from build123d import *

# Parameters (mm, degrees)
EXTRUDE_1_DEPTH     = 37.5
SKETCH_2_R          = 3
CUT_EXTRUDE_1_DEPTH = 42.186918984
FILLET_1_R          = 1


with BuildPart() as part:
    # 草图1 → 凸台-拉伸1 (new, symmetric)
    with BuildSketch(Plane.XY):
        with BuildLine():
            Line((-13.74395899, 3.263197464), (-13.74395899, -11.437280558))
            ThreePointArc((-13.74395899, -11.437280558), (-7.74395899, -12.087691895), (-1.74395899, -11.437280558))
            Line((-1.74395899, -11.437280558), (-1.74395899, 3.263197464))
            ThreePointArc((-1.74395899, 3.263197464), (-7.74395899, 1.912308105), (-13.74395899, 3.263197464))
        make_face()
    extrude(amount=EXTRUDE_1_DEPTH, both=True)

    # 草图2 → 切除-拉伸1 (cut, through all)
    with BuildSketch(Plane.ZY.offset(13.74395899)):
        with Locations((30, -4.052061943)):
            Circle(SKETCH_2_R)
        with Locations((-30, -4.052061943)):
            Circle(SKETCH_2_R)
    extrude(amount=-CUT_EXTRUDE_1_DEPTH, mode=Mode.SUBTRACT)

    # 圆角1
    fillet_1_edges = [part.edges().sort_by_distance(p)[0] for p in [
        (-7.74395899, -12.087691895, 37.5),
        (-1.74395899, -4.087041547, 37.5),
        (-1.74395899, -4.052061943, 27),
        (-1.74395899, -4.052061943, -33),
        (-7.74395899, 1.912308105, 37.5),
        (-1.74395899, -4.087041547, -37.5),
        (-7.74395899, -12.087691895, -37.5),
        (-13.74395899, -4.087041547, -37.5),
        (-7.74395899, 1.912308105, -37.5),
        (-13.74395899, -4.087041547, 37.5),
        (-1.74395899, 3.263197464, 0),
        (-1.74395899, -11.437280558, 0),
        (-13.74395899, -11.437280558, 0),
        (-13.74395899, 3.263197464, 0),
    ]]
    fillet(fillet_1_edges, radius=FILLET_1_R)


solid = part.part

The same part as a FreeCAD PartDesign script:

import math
import FreeCAD as App
import Part
import Sketcher
Q = App.Units.Quantity


def edges_at(feature, points):
    """Names of the edges that pass closest to the given points."""
    edges = feature.Shape.Edges
    near = lambda p: min(range(len(edges)), key=lambda i: edges[i].distToShape(Part.Vertex(*p))[0])
    return sorted({f"Edge{near(p) + 1}" for p in points})

doc = App.newDocument("Part")
body = doc.addObject("PartDesign::Body", "Body")

# Sketch on XY plane
sketch1 = body.newObject("Sketcher::SketchObject", "Sketch")
sketch1.AttachmentSupport = (doc.getObject("XY_Plane"), [""])
sketch1.MapMode = "FlatFace"
sketch1.addGeometry([
    Part.LineSegment(App.Vector(-14, 3, 0), App.Vector(-14, -11, 0)),
    Part.ArcOfCircle(Part.Circle(App.Vector(-8, 16, 0), App.Vector(0, 0, 1), 28), math.radians(-102), math.radians(-78)),
    Part.LineSegment(App.Vector(-2, -11, 0), App.Vector(-2, 3, 0)),
    Part.ArcOfCircle(Part.Circle(App.Vector(-8, 16, 0), App.Vector(0, 0, 1), 14), math.radians(-115), math.radians(-65)),
], False)
sketch1.addConstraint([
    Sketcher.Constraint("Coincident", 0, 2, 1, 1),
    Sketcher.Constraint("Coincident", 1, 2, 2, 1),
    Sketcher.Constraint("Coincident", 2, 2, 3, 2),
    Sketcher.Constraint("Coincident", 3, 1, 0, 1),
    Sketcher.Constraint("Vertical", 0),
    Sketcher.Constraint("Vertical", 2),
    Sketcher.Constraint("Coincident", 3, 3, 1, 3),
    Sketcher.Constraint("Horizontal", 0, 2, 1, 2),
    Sketcher.Constraint("Radius", 1, Q("28 mm")),
    Sketcher.Constraint("Radius", 3, Q("14 mm")),
    Sketcher.Constraint("DistanceX", 0, 2, 3, 3, Q("6 mm")),
    Sketcher.Constraint("DistanceX", 1, 3, -1, 1, Q("7.743959 mm")),
    Sketcher.Constraint("DistanceY", -1, 1, 1, 3, Q("15.912308 mm")),
])
pad1 = body.newObject("PartDesign::Pad", "Pad")
pad1.Profile = sketch1
pad1.Length = 75
pad1.Midplane = True

# Sketch on YZ plane
sketch2 = body.newObject("Sketcher::SketchObject", "Sketch001")
sketch2.AttachmentSupport = (doc.getObject("YZ_Plane"), [""])
sketch2.MapMode = "FlatFace"
sketch2.AttachmentOffset = App.Placement(App.Vector(0, 0, -13.743959), App.Rotation())
sketch2.addGeometry([
    Part.Circle(App.Vector(-4.1, 30, 0), App.Vector(0, 0, 1), 3),
    Part.Circle(App.Vector(-4.1, -30, 0), App.Vector(0, 0, 1), 3),
], False)
sketch2.addConstraint([
    Sketcher.Constraint("Equal", 0, 1),
    Sketcher.Constraint("Symmetric", 0, 3, 1, 3, -1),
    Sketcher.Constraint("Diameter", 0, Q("6 mm")),
    Sketcher.Constraint("DistanceY", -1, 1, 0, 3, Q("30 mm")),
    Sketcher.Constraint("DistanceX", 0, 3, -1, 1, Q("4.052062 mm")),
])
pocket1 = body.newObject("PartDesign::Pocket", "Pocket")
pocket1.Profile = sketch2
pocket1.Type = "ThroughAll"
pocket1.Reversed = True
doc.recompute()

fillet = body.newObject("PartDesign::Fillet", "Fillet")
fillet.Base = (pocket1, edges_at(pocket1, [
    (-7.744, -12.088, 37.5),
    (-1.744, -4.087, 37.5),
    (-1.744, -4.052, 27),
    (-1.744, -4.052, -33),
    (-7.744, 1.912, 37.5),
    (-1.744, -4.087, -37.5),
    (-7.744, -12.088, -37.5),
    (-13.744, -4.087, -37.5),
    (-7.744, 1.912, -37.5),
    (-13.744, -4.087, 37.5),
    (-1.744, 3.263, 0),
    (-1.744, -11.437, 0),
    (-13.744, -11.437, 0),
    (-13.744, 3.263, 0),
]))
fillet.Radius = 1

doc.recompute()
